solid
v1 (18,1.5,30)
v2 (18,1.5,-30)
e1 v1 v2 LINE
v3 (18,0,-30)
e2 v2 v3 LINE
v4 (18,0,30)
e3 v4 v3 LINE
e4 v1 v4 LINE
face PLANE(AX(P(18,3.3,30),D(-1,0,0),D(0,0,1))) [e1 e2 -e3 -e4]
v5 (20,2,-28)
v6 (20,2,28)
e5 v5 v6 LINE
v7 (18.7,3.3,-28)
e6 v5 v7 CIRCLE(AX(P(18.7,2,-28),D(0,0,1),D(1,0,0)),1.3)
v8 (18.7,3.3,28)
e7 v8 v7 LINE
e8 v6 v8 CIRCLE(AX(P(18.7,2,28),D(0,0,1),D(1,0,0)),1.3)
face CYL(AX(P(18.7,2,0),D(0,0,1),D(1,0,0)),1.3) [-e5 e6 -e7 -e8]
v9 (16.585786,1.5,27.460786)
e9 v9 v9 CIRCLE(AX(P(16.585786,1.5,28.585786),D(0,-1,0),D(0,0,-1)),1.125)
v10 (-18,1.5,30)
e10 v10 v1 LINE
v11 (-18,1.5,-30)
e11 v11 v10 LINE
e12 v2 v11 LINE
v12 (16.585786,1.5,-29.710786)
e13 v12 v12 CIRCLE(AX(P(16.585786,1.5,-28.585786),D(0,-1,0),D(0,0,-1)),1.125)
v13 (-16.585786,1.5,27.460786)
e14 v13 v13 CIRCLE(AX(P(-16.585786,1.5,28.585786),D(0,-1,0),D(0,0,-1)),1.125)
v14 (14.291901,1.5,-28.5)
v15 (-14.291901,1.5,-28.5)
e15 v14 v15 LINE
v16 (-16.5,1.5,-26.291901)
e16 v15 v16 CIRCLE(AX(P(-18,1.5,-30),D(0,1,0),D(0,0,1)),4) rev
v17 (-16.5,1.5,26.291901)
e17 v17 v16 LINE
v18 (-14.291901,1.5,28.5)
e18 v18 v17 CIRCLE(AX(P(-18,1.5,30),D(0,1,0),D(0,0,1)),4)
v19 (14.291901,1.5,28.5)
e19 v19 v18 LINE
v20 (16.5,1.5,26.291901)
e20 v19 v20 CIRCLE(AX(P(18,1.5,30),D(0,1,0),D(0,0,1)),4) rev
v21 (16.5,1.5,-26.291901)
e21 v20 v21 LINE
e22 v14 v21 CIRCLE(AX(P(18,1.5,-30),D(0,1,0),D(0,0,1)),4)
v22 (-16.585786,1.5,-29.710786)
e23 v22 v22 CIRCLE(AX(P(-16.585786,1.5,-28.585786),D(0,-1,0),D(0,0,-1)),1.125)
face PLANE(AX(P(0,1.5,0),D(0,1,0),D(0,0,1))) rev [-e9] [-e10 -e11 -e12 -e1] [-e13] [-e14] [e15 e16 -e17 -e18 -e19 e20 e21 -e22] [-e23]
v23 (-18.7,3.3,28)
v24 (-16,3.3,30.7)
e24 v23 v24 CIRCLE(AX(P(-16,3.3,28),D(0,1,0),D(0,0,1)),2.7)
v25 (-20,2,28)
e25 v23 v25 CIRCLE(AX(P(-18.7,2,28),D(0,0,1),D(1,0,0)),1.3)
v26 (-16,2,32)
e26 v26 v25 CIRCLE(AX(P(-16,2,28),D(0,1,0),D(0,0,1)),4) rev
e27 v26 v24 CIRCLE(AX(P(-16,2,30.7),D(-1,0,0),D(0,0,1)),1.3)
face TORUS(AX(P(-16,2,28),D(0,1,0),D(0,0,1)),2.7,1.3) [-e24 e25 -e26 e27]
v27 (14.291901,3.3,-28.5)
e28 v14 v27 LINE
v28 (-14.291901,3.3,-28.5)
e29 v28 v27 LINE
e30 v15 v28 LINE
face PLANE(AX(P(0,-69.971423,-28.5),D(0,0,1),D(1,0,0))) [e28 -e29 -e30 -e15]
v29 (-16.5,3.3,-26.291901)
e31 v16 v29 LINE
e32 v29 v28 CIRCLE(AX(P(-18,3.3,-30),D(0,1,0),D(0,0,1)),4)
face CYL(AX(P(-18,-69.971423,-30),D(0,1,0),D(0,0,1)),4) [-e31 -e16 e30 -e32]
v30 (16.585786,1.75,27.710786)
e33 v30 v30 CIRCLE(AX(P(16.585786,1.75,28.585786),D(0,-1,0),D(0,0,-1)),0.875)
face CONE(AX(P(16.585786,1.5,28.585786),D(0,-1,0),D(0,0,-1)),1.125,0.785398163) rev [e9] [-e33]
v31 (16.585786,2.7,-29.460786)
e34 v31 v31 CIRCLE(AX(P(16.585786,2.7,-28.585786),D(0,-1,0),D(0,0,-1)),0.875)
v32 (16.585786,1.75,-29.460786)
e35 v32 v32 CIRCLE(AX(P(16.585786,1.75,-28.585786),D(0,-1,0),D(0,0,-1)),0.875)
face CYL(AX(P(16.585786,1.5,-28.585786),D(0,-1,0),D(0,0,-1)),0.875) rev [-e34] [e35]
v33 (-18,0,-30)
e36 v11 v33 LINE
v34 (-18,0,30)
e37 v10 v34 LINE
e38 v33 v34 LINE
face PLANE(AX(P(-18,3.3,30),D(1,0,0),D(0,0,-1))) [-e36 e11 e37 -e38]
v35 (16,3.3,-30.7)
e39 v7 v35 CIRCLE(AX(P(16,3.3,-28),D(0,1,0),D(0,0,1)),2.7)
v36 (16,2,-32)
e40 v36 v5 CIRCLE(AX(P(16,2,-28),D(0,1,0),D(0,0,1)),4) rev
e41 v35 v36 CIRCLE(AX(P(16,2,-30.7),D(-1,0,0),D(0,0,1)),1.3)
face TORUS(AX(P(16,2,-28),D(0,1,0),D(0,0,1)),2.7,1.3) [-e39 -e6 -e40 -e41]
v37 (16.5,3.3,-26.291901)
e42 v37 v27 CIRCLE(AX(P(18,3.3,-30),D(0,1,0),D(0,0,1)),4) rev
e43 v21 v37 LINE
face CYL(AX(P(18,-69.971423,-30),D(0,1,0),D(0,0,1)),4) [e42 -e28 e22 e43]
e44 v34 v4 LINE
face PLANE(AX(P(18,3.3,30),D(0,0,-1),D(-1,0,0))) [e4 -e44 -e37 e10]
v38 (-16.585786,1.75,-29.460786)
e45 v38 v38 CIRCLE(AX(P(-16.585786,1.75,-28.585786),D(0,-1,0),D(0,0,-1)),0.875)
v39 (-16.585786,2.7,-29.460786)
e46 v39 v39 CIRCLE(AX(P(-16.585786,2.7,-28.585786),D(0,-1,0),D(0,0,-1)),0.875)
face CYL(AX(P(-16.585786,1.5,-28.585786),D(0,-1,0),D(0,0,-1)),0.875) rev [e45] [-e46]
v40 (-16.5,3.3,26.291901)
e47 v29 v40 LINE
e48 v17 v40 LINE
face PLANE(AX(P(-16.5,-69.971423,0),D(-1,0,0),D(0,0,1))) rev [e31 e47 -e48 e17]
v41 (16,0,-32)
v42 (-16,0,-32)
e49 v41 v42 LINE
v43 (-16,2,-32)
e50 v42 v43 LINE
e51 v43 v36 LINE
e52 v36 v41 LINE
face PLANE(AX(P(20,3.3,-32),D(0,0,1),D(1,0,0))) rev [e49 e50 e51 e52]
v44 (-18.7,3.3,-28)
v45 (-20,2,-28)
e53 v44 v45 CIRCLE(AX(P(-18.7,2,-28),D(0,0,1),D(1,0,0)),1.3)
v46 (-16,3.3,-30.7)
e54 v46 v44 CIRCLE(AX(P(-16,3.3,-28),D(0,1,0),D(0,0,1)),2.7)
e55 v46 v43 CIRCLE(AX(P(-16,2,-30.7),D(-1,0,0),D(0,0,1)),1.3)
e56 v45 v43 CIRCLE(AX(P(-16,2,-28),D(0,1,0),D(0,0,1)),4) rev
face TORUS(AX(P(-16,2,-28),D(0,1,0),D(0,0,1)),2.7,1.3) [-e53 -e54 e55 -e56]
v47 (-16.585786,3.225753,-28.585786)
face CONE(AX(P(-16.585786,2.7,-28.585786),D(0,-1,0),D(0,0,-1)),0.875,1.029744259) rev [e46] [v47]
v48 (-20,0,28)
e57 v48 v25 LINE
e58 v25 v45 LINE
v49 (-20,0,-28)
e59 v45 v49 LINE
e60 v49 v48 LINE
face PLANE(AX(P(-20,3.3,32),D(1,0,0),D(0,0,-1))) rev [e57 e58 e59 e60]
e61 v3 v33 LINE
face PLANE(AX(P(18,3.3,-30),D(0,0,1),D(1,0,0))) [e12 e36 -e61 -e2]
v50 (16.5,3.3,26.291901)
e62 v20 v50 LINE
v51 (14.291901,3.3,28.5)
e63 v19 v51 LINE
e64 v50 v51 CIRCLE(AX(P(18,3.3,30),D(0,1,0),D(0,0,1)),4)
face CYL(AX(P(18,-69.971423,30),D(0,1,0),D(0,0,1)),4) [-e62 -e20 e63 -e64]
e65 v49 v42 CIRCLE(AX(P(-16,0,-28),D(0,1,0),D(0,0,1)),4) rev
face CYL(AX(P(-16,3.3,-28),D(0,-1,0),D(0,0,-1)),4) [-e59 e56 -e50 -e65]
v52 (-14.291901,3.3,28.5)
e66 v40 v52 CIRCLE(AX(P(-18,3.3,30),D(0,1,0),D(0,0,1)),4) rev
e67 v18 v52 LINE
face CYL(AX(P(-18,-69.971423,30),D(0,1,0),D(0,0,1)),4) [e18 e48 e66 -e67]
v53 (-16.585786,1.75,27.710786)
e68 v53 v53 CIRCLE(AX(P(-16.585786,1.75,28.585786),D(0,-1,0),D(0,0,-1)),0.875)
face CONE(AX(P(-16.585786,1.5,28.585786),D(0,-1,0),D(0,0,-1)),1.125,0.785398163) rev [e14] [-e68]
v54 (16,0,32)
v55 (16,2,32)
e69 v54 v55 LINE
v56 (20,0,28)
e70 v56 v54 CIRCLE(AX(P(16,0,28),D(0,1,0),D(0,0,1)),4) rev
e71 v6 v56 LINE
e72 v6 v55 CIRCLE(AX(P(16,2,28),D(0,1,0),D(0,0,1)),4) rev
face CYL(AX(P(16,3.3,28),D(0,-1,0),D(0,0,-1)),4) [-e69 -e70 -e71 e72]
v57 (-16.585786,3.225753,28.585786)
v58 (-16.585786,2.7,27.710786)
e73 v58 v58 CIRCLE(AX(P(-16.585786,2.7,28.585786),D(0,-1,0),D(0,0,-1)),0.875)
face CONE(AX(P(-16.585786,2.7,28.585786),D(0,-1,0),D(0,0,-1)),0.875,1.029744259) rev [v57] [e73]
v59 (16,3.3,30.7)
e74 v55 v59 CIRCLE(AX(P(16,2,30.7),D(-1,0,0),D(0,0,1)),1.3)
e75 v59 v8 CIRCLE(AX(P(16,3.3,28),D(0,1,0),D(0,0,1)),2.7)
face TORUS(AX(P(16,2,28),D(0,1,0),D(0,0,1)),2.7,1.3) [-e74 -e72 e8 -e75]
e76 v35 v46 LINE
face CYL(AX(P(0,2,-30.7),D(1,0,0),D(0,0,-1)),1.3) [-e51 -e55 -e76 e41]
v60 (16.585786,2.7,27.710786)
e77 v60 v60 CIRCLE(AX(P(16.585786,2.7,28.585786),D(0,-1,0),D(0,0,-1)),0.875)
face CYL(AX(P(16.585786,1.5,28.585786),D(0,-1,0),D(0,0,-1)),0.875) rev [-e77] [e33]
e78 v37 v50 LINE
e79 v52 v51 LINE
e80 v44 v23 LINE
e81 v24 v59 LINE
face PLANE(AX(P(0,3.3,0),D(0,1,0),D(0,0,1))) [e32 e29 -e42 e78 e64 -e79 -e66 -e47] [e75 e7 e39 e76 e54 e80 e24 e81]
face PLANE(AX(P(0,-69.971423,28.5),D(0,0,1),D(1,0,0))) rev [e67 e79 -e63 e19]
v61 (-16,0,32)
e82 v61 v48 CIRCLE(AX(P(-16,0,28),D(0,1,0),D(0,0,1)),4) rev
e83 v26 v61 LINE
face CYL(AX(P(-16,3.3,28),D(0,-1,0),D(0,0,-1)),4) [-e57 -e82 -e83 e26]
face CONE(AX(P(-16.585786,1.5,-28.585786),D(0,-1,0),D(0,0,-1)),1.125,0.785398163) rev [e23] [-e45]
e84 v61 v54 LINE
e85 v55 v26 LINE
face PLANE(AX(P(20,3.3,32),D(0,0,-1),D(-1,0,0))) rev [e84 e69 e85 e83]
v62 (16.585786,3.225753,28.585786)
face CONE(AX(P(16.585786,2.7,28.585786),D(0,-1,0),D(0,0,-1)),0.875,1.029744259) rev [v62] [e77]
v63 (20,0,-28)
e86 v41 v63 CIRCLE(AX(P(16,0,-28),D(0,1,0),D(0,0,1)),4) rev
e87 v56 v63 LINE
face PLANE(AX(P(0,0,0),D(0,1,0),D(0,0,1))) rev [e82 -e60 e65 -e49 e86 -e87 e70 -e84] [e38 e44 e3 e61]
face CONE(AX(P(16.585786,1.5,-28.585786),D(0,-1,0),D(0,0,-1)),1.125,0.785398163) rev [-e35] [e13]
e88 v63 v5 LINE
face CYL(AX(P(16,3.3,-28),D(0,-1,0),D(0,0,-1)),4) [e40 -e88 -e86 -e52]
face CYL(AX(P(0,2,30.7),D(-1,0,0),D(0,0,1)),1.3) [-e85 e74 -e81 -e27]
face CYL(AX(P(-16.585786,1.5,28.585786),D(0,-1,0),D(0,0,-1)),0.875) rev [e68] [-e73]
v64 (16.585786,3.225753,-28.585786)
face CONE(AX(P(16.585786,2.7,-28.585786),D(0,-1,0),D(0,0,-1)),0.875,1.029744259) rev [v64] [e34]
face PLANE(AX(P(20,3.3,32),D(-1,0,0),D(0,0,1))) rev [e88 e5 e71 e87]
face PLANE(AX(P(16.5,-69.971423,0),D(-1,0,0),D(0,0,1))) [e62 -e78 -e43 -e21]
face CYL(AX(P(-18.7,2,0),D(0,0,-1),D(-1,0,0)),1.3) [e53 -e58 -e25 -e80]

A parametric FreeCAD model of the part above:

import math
import FreeCAD as App
import Part
import Sketcher
from FreeCAD import Vector
Q = App.Units.Quantity


def edges_at(feature, points):
    """Names of the edges that pass closest to the given points."""
    edges = feature.Shape.Edges
    near = lambda p: min(range(len(edges)), key=lambda i: edges[i].distToShape(Part.Vertex(*p))[0])
    return sorted({f"Edge{near(p) + 1}" for p in points})

doc = App.newDocument("Part")
body = doc.addObject("PartDesign::Body", "Body")

# Sketch on XZ plane
sketch1 = body.newObject("Sketcher::SketchObject", "Sketch")
sketch1.AttachmentSupport = (doc.getObject("XZ_Plane"), [""])
sketch1.MapMode = "FlatFace"
sketch1.addGeometry([
    Part.LineSegment(Vector(-20, -32, 0), Vector(-20, 32, 0)),  # 0
    Part.LineSegment(Vector(-20, 32, 0), Vector(20, 32, 0)),  # 1
    Part.LineSegment(Vector(20, 32, 0), Vector(20, -32, 0)),  # 2
    Part.LineSegment(Vector(20, -32, 0), Vector(-20, -32, 0)),  # 3
    Part.LineSegment(Vector(18, 30, 0), Vector(-18, 30, 0)),  # 4
    Part.LineSegment(Vector(-18, 30, 0), Vector(-18, -30, 0)),  # 5
    Part.LineSegment(Vector(-18, -30, 0), Vector(18, -30, 0)),  # 6
    Part.LineSegment(Vector(18, -30, 0), Vector(18, 30, 0)),  # 7
], False)
sketch1.addConstraint([
    Sketcher.Constraint("Coincident", 0, 2, 1, 1),
    Sketcher.Constraint("Coincident", 1, 2, 2, 1),
    Sketcher.Constraint("Coincident", 2, 2, 3, 1),
    Sketcher.Constraint("Coincident", 3, 2, 0, 1),
    Sketcher.Constraint("Coincident", 4, 2, 5, 1),
    Sketcher.Constraint("Coincident", 5, 2, 6, 1),
    Sketcher.Constraint("Coincident", 6, 2, 7, 1),
    Sketcher.Constraint("Coincident", 7, 2, 4, 1),
    Sketcher.Constraint("Vertical", 0),
    Sketcher.Constraint("Horizontal", 1),
    Sketcher.Constraint("Vertical", 2),
    Sketcher.Constraint("Horizontal", 3),
    Sketcher.Constraint("Horizontal", 4),
    Sketcher.Constraint("Vertical", 5),
    Sketcher.Constraint("Horizontal", 6),
    Sketcher.Constraint("Vertical", 7),
    Sketcher.Constraint("Symmetric", 0, 2, 2, 2, -1, 1),
    Sketcher.Constraint("Symmetric", 4, 2, 6, 2, -1, 1),
    Sketcher.Constraint("DistanceX", 1, 1, 1, 2, Q("40 mm")),
    Sketcher.Constraint("DistanceX", 4, 2, 4, 1, Q("36 mm")),
    Sketcher.Constraint("DistanceY", 0, 1, 0, 2, Q("64 mm")),
    Sketcher.Constraint("DistanceY", 5, 2, 5, 1, Q("60 mm")),
])
pad1 = body.newObject("PartDesign::Pad", "Pad")
pad1.Profile = sketch1
pad1.Length = 3.3
pad1.Reversed = True

# Sketch on XZ plane
sketch2 = body.newObject("Sketcher::SketchObject", "Sketch001")
sketch2.AttachmentSupport = (doc.getObject("XZ_Plane"), [""])
sketch2.MapMode = "FlatFace"
sketch2.AttachmentOffset = App.Placement(Vector(0, 0, -3.3), App.Rotation())
sketch2.addGeometry([
    Part.LineSegment(Vector(-18, -30, 0), Vector(-18, 30, 0)),  # 0
    Part.LineSegment(Vector(-18, 30, 0), Vector(18, 30, 0)),  # 1
    Part.LineSegment(Vector(18, 30, 0), Vector(18, -30, 0)),  # 2
    Part.LineSegment(Vector(18, -30, 0), Vector(-18, -30, 0)),  # 3
    Part.LineSegment(Vector(-14.3, -28.5, 0), Vector(14.3, -28.5, 0)),  # 4
    Part.ArcOfCircle(Part.Circle(Vector(18, -30, 0), Vector(0, 0, 1), 4), math.radians(112), math.radians(158)),  # 5
    Part.LineSegment(Vector(16.5, -26.3, 0), Vector(16.5, 26.3, 0)),  # 6
    Part.ArcOfCircle(Part.Circle(Vector(18, 30, 0), Vector(0, 0, 1), 4), math.radians(-158), math.radians(-112)),  # 7
    Part.LineSegment(Vector(14.3, 28.5, 0), Vector(-14.3, 28.5, 0)),  # 8
    Part.ArcOfCircle(Part.Circle(Vector(-18, 30, 0), Vector(0, 0, 1), 4), math.radians(-68), math.radians(-22)),  # 9
    Part.LineSegment(Vector(-16.5, 26.3, 0), Vector(-16.5, -26.3, 0)),  # 10
    Part.ArcOfCircle(Part.Circle(Vector(-18, -30, 0), Vector(0, 0, 1), 4), math.radians(22), math.radians(68)),  # 11
], False)
sketch2.addConstraint([
    Sketcher.Constraint("Coincident", 0, 2, 1, 1),
    Sketcher.Constraint("Coincident", 1, 2, 2, 1),
    Sketcher.Constraint("Coincident", 2, 2, 3, 1),
    Sketcher.Constraint("Coincident", 3, 2, 0, 1),
    Sketcher.Constraint("Coincident", 4, 2, 5, 2),
    Sketcher.Constraint("Coincident", 5, 1, 6, 1),
    Sketcher.Constraint("Coincident", 6, 2, 7, 2),
    Sketcher.Constraint("Coincident", 7, 1, 8, 1),
    Sketcher.Constraint("Coincident", 8, 2, 9, 2),
    Sketcher.Constraint("Coincident", 9, 1, 10, 1),
    Sketcher.Constraint("Coincident", 10, 2, 11, 2),
    Sketcher.Constraint("Coincident", 11, 1, 4, 1),
    Sketcher.Constraint("Vertical", 0),
    Sketcher.Constraint("Horizontal", 1),
    Sketcher.Constraint("Vertical", 2),
    Sketcher.Constraint("Horizontal", 3),
    Sketcher.Constraint("Horizontal", 4),
    Sketcher.Constraint("Vertical", 6),
    Sketcher.Constraint("Horizontal", 8),
    Sketcher.Constraint("Vertical", 10),
    Sketcher.Constraint("Coincident", 0, 2, 9, 3),
    Sketcher.Constraint("Coincident", 1, 2, 7, 3),
    Sketcher.Constraint("Coincident", 2, 2, 5, 3),
    Sketcher.Constraint("Coincident", 3, 2, 11, 3),
    Sketcher.Constraint("Equal", 5, 7),
    Sketcher.Constraint("Equal", 7, 9),
    Sketcher.Constraint("Equal", 9, 11),
    Sketcher.Constraint("Symmetric", 5, 3, 9, 3, -1, 1),
    Sketcher.Constraint("Horizontal", 6, 2, 9, 1),
    Sketcher.Constraint("Vertical", 4, 2, 7, 1),
    Sketcher.Constraint("Radius", 5, Q("4 mm")),
    Sketcher.Constraint("DistanceX", 1, 1, 1, 2, Q("36 mm")),
    Sketcher.Constraint("DistanceY", 0, 1, 0, 2, Q("60 mm")),
    Sketcher.Constraint("DistanceX", 9, 1, 6, 2, Q("33 mm")),
    Sketcher.Constraint("DistanceY", 4, 2, -1, 1, Q("28.5 mm")),
])
pad2 = body.newObject("PartDesign::Pad", "Pad001")
pad2.Profile = sketch2
pad2.Length = 1.8
doc.recompute()

fillet = body.newObject("PartDesign::Fillet", "Fillet")
fillet.Base = (pad2, edges_at(pad2, [
    (-20, 1.65, -32),
    (20, 1.65, -32),
    (20, 1.65, 32),
    (-20, 1.65, 32),
]))
fillet.Radius = 4

# Sketch on XZ plane
sketch3 = body.newObject("Sketcher::SketchObject", "Sketch002")
sketch3.AttachmentSupport = (doc.getObject("XZ_Plane"), [""])
sketch3.MapMode = "FlatFace"
sketch3.AttachmentOffset = App.Placement(Vector(0, 0, -1.5), App.Rotation())
sketch3.addGeometry([
    Part.Circle(Vector(-16.6, 28.6, 0), Vector(0, 0, 1), 0.9),
    Part.Circle(Vector(16.6, 28.6, 0), Vector(0, 0, 1), 0.9),
    Part.Circle(Vector(-16.6, -28.6, 0), Vector(0, 0, 1), 0.9),
    Part.Circle(Vector(16.6, -28.6, 0), Vector(0, 0, 1), 0.9),
], False)
sketch3.addConstraint([
    Sketcher.Constraint("Equal", 0, 1),
    Sketcher.Constraint("Equal", 1, 2),
    Sketcher.Constraint("Equal", 2, 3),
    Sketcher.Constraint("Symmetric", 1, 3, 2, 3, -1, 1),
    Sketcher.Constraint("Symmetric", 0, 3, 3, 3, -1, 1),
    Sketcher.Constraint("Symmetric", 0, 3, 1, 3, -2),
    Sketcher.Constraint("Diameter", 0, Q("1.75 mm")),
    Sketcher.Constraint("DistanceX", 0, 3, -1, 1, Q("16.585786 mm")),
    Sketcher.Constraint("DistanceY", -1, 1, 0, 3, Q("28.585786 mm")),
])
doc.recompute()
hole = body.newObject("PartDesign::Hole", "Hole")
hole.Profile = sketch3
hole.ThreadType = "None"
hole.Diameter = 1.75
hole.DepthType = "Dimension"
hole.Depth = 1.2
hole.DrillPoint = "Angled"
hole.DrillPointAngle = 118
hole.HoleCutType = "Countersink"
hole.HoleCutDiameter = 2.25
hole.HoleCutCountersinkAngle = 90
doc.recompute()

fillet2 = body.newObject("PartDesign::Fillet", "Fillet001")
fillet2.Base = (hole, edges_at(hole, [
    (0, 3.3, -32),
    (20, 3.3, 0),
    (-20, 3.3, 0),
    (0, 3.3, 32),
    (-18.828, 3.3, 30.828),
    (18.828, 3.3, 30.828),
    (-18.828, 3.3, -30.828),
    (18.828, 3.3, -30.828),
]))
fillet2.Radius = 1.3

doc.recompute()
